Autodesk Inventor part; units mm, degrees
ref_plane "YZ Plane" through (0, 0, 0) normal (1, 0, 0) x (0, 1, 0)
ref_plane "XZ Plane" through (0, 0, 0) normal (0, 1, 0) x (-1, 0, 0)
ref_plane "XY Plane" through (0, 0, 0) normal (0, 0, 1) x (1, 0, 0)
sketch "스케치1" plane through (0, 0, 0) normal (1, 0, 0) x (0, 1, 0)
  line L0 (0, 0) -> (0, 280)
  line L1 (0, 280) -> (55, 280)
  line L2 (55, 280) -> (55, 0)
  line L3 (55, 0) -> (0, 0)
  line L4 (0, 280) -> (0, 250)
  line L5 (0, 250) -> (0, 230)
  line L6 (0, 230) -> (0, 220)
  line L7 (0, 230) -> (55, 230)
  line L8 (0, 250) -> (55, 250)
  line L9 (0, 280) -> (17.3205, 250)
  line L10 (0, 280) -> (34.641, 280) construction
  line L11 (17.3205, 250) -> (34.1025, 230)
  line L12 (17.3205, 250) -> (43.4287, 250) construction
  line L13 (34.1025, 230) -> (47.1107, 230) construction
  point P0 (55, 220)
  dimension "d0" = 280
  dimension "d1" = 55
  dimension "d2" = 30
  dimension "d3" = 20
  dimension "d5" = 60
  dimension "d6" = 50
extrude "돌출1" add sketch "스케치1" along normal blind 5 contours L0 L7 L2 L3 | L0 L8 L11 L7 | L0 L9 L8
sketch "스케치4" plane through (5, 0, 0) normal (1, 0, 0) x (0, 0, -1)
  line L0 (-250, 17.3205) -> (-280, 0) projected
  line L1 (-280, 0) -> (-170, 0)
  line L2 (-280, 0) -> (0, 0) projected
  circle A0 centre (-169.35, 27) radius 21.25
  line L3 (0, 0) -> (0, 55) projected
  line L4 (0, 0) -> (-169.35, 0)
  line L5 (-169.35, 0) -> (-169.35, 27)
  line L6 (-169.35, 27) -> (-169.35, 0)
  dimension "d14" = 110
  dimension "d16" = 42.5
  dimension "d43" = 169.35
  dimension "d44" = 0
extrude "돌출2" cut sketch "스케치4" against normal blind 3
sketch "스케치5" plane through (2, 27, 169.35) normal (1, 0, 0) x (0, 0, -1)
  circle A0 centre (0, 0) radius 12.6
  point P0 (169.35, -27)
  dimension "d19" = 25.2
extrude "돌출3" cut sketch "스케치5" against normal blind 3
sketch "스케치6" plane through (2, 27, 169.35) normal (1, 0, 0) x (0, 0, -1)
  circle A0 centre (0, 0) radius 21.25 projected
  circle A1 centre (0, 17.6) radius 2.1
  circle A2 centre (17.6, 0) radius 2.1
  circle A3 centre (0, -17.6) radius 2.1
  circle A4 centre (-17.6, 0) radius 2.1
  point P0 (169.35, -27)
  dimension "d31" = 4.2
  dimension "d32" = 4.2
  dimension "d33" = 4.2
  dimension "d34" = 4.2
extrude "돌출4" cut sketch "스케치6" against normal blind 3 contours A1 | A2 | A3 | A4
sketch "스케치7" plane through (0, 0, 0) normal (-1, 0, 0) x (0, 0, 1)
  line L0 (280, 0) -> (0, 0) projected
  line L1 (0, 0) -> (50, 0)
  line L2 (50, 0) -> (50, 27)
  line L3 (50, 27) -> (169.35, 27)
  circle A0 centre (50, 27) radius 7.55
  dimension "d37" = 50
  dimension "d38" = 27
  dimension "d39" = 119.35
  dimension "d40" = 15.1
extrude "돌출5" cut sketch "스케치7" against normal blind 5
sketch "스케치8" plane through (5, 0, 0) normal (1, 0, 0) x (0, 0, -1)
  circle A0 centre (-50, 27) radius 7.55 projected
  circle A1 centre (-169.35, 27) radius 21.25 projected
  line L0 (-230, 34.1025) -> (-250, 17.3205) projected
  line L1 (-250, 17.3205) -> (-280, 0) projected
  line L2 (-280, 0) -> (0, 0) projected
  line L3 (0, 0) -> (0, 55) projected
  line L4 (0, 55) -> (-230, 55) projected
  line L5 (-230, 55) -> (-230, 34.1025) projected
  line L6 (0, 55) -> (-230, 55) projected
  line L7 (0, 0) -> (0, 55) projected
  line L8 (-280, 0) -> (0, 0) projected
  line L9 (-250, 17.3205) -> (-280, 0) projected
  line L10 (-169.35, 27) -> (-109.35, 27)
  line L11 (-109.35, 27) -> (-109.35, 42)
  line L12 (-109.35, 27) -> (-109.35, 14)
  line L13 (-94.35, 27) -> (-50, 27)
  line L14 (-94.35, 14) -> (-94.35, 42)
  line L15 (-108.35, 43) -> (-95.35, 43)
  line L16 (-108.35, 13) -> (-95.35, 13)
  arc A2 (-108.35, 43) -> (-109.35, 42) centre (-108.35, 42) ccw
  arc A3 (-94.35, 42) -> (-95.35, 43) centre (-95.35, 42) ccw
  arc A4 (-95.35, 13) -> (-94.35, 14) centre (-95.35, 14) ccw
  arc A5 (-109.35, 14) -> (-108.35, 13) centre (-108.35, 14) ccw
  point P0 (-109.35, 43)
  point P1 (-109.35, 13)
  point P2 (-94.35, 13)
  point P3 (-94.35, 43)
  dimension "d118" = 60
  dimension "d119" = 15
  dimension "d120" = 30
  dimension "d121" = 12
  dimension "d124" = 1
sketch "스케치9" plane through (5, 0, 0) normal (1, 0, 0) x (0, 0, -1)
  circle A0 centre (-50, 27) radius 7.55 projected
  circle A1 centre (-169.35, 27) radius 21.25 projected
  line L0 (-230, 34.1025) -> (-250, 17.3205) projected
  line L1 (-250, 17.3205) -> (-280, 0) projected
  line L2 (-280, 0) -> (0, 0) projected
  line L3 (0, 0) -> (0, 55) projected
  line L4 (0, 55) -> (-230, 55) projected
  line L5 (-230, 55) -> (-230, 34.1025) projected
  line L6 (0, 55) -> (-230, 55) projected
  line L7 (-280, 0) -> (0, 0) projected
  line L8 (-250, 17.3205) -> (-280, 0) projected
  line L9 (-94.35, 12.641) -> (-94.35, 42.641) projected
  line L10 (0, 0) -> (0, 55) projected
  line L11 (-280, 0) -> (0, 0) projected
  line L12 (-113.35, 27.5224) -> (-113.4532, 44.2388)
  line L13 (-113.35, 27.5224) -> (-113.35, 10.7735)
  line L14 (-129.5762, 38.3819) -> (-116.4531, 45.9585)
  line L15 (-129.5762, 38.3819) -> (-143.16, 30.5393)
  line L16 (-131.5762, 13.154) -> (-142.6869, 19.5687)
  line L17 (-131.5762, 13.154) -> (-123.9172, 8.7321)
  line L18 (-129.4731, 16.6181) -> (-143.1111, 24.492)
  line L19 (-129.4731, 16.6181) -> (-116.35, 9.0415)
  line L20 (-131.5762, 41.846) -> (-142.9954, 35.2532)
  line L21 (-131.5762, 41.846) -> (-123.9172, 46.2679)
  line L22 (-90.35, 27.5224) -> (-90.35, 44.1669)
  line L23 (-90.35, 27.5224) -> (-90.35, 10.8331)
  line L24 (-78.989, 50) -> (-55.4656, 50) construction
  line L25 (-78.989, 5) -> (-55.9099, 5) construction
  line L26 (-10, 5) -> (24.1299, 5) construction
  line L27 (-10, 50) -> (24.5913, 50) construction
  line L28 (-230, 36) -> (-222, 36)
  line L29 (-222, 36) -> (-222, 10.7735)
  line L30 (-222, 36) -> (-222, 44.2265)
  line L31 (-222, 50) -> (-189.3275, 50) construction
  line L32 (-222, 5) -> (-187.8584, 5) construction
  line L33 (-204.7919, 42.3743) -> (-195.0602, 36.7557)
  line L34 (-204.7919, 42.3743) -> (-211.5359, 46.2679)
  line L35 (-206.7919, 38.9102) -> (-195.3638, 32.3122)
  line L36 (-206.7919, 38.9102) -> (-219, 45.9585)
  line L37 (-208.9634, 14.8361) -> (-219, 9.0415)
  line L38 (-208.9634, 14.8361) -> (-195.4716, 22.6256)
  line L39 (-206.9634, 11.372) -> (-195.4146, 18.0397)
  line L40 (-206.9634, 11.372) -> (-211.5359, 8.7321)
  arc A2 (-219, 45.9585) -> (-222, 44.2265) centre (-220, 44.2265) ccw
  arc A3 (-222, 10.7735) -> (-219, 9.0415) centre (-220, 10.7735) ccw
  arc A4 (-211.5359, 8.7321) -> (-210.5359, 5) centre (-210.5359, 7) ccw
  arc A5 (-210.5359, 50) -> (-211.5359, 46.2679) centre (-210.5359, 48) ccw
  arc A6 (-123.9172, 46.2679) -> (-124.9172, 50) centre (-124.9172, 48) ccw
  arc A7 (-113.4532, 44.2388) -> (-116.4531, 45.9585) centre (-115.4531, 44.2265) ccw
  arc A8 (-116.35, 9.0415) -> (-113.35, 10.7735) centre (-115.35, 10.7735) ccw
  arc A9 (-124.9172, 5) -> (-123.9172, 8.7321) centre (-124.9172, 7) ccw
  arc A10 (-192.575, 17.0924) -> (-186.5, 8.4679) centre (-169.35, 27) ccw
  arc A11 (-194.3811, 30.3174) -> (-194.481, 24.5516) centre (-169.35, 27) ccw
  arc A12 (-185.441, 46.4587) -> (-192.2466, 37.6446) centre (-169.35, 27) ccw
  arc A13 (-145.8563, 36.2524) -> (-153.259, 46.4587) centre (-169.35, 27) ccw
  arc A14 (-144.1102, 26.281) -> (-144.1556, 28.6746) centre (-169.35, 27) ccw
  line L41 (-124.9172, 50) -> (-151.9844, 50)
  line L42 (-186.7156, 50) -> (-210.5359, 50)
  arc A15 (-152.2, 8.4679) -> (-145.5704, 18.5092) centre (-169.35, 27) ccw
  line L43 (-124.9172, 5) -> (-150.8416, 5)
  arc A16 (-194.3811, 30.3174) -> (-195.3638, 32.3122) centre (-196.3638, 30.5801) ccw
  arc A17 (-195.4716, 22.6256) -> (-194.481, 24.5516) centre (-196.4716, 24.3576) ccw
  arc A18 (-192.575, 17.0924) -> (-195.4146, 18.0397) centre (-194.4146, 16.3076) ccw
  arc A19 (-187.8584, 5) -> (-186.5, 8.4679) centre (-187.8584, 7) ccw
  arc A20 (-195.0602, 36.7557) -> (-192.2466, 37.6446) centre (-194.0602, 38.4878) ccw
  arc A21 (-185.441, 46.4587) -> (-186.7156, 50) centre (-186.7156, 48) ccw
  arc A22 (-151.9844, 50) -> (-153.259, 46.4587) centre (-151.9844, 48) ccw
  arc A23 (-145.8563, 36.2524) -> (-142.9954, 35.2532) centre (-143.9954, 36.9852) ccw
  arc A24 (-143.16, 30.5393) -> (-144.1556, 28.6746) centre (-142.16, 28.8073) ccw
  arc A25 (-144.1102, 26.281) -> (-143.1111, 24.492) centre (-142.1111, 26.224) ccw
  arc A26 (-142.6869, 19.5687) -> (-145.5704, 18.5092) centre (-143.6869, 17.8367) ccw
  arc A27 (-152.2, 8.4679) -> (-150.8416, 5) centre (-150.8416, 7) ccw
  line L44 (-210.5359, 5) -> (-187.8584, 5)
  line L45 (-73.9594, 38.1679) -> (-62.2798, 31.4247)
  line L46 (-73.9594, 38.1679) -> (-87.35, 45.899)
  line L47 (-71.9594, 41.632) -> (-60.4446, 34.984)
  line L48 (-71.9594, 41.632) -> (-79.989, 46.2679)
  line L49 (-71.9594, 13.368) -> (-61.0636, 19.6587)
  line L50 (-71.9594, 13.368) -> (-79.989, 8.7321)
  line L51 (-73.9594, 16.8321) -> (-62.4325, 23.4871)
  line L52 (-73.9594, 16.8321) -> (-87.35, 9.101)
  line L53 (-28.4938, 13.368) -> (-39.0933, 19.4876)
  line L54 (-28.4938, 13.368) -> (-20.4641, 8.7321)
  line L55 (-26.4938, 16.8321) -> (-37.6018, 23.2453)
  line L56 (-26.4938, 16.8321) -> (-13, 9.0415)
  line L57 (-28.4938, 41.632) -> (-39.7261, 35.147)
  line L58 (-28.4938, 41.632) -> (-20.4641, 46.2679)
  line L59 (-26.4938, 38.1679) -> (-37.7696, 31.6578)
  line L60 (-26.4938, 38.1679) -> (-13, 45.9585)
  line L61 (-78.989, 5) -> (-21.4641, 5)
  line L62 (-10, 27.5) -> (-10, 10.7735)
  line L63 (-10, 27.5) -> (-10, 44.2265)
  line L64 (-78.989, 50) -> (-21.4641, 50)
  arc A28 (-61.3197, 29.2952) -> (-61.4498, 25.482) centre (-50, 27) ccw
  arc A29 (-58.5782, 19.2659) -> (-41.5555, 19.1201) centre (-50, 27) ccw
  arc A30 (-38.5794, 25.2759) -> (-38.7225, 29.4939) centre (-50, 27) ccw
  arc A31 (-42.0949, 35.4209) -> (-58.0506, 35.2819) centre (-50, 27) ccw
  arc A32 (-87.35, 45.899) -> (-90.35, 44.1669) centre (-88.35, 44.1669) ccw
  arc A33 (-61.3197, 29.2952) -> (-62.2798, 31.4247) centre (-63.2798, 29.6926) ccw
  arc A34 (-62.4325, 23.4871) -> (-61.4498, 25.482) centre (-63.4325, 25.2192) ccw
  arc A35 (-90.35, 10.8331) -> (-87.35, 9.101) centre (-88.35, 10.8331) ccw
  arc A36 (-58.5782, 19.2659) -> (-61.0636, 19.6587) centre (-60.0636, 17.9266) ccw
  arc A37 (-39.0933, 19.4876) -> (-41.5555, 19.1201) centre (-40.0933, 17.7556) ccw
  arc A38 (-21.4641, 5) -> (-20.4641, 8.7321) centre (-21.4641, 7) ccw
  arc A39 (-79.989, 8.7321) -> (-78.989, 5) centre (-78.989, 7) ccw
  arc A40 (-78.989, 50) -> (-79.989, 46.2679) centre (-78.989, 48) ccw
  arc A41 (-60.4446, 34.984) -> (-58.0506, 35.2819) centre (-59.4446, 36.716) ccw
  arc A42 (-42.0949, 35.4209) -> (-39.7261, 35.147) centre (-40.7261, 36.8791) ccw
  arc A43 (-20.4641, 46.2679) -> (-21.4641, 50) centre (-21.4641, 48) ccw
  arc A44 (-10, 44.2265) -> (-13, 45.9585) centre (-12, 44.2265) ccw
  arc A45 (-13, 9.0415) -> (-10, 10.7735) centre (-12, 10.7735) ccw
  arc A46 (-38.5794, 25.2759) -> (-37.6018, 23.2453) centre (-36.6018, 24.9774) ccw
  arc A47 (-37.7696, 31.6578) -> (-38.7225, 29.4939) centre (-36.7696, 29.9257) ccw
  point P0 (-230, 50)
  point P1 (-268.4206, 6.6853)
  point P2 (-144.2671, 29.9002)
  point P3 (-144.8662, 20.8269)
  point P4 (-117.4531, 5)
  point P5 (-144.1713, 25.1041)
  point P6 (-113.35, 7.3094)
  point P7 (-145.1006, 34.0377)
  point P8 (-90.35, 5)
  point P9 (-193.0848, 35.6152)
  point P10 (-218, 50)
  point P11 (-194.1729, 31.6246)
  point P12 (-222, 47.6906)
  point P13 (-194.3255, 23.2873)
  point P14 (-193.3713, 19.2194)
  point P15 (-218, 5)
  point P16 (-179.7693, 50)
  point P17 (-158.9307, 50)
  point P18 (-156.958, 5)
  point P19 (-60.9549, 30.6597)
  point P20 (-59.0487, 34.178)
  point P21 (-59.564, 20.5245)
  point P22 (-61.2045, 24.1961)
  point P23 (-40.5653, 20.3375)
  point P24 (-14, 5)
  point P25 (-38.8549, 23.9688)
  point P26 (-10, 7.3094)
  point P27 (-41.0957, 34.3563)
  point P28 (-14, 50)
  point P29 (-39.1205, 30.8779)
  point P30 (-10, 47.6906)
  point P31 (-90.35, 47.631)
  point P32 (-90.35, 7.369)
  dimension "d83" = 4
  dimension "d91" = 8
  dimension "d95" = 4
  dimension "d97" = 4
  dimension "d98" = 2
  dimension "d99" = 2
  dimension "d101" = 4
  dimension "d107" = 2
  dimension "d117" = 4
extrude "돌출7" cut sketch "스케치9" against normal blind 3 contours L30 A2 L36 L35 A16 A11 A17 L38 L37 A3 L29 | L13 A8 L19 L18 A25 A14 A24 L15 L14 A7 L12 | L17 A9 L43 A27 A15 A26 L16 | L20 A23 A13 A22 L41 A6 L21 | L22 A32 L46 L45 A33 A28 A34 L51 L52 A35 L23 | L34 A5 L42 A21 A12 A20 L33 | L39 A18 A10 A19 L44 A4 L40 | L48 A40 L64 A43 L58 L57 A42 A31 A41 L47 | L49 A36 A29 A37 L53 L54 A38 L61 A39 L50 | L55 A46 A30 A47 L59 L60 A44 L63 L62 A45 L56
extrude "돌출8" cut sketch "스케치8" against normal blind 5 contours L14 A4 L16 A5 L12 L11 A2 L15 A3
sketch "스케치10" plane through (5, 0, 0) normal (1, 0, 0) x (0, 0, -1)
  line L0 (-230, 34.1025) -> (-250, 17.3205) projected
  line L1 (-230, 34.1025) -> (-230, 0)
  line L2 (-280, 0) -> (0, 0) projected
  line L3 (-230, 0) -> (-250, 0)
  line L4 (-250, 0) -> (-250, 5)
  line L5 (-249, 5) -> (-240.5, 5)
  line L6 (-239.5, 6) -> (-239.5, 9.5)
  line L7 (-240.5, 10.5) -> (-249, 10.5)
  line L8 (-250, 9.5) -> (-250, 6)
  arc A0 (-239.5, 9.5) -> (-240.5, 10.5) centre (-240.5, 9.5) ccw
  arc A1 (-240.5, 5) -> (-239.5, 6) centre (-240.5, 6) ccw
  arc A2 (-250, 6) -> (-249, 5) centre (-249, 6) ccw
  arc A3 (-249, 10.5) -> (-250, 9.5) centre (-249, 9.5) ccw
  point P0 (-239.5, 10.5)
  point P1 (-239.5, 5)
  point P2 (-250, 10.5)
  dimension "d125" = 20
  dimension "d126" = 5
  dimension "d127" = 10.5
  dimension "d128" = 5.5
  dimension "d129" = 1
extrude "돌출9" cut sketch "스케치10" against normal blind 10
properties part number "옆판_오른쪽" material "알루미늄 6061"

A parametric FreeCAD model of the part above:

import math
import FreeCAD as App
import Part
import Sketcher

V = App.Vector
Q = App.Units.Quantity


def add_polygon(sketch, points):
    """Adds a closed chain of lines whose ends are joined by coincident constraints."""
    first, n = sketch.GeometryCount, len(points)
    for a, b in zip(points, points[1:] + points[:1]):
        sketch.addGeometry(Part.LineSegment(App.Vector(*a, 0), App.Vector(*b, 0)), False)
    for i in range(n):
        sketch.addConstraint(Sketcher.Constraint("Coincident", first + i, 2, first + (i + 1) % n, 1))

doc = App.newDocument("Part")
body = doc.addObject("PartDesign::Body", "Body")

sketch1 = body.newObject("Sketcher::SketchObject", "Sketch")
sketch1.AttachmentSupport = (doc.getObject("YZ_Plane"), [""])
sketch1.MapMode = "FlatFace"
add_polygon(sketch1, [(0, 0), (55, 0), (55, 230), (34, 230), (17, 250), (0, 280)])
sketch1.addConstraint(Sketcher.Constraint("Horizontal", 0))
sketch1.addConstraint(Sketcher.Constraint("Vertical", 1))
sketch1.addConstraint(Sketcher.Constraint("Horizontal", 2))
sketch1.addConstraint(Sketcher.Constraint("Vertical", 5))
sketch1.addConstraint(Sketcher.Constraint("Coincident", 5, 2, -1, 1))
sketch1.addConstraint(Sketcher.Constraint("DistanceX", 0, 1, 0, 2, 55.0))
sketch1.addConstraint(Sketcher.Constraint("DistanceY", 5, 2, 5, 1, 280.0))
sketch1.addConstraint(Sketcher.Constraint("DistanceY", 2, 2, 3, 2, 20.0))
sketch1.addConstraint(Sketcher.Constraint("DistanceY", 3, 2, 4, 2, 30.0))
sketch1.addConstraint(Sketcher.Constraint("Angle", 3, Q("130 deg")))
sketch1.addConstraint(Sketcher.Constraint("Angle", 4, Q("120 deg")))
pad1 = body.newObject("PartDesign::Pad", "Pad")
pad1.Profile = sketch1
pad1.Length = 5

sketch2 = body.newObject("Sketcher::SketchObject", "Sketch001")
sketch2.AttachmentSupport = (doc.getObject("YZ_Plane"), [""])
sketch2.MapMode = "FlatFace"
sketch2.AttachmentOffset = App.Placement(V(0, 0, 5), App.Rotation())
sketch2.addGeometry(Part.Circle(V(27, 169, 0), V(0, 0, 1), 21), False)
sketch2.addConstraint(Sketcher.Constraint("Diameter", 0, 42.5))
sketch2.addConstraint(Sketcher.Constraint("DistanceY", -1, 1, 0, 3, 169.35))
sketch2.addConstraint(Sketcher.Constraint("DistanceX", -1, 1, 0, 3, 27.0))
pocket1 = body.newObject("PartDesign::Pocket", "Pocket")
pocket1.Profile = sketch2
pocket1.Length = 3

sketch3 = body.newObject("Sketcher::SketchObject", "Sketch002")
sketch3.AttachmentSupport = (doc.getObject("YZ_Plane"), [""])
sketch3.MapMode = "FlatFace"
sketch3.AttachmentOffset = App.Placement(V(0, 0, 2), App.Rotation())
sketch3.addGeometry(Part.Circle(V(27, 169, 0), V(0, 0, 1), 13), False)
sketch3.addConstraint(Sketcher.Constraint("Diameter", 0, 25.2))
sketch3.addConstraint(Sketcher.Constraint("DistanceX", -1, 1, 0, 3, 27.0))
sketch3.addConstraint(Sketcher.Constraint("DistanceY", -1, 1, 0, 3, 169.35))
pocket2 = body.newObject("PartDesign::Pocket", "Pocket001")
pocket2.Profile = sketch3
pocket2.Length = 3

sketch4 = body.newObject("Sketcher::SketchObject", "Sketch003")
sketch4.AttachmentSupport = (doc.getObject("YZ_Plane"), [""])
sketch4.MapMode = "FlatFace"
sketch4.AttachmentOffset = App.Placement(V(0, 0, 2), App.Rotation())
sketch4.addGeometry(Part.Circle(V(44.6, 169.3, 0), V(0, 0, 1), 2.1), False)
sketch4.addGeometry(Part.Circle(V(27, 151.8, 0), V(0, 0, 1), 2.1), False)
sketch4.addGeometry(Part.Circle(V(9.4, 169.3, 0), V(0, 0, 1), 2.1), False)
sketch4.addGeometry(Part.Circle(V(27, 186.9, 0), V(0, 0, 1), 2.1), False)
sketch4.addConstraint(Sketcher.Constraint("Equal", 0, 1))
sketch4.addConstraint(Sketcher.Constraint("Equal", 1, 2))
sketch4.addConstraint(Sketcher.Constraint("Equal", 2, 3))
sketch4.addConstraint(Sketcher.Constraint("Horizontal", 0, 3, 2, 3))
sketch4.addConstraint(Sketcher.Constraint("Vertical", 1, 3, 3, 3))
sketch4.addConstraint(Sketcher.Constraint("Diameter", 0, 4.2))
sketch4.addConstraint(Sketcher.Constraint("DistanceX", -1, 1, 1, 3, 27.0))
sketch4.addConstraint(Sketcher.Constraint("DistanceX", -1, 1, 0, 3, 44.6))
sketch4.addConstraint(Sketcher.Constraint("DistanceX", -1, 1, 2, 3, 9.4))
sketch4.addConstraint(Sketcher.Constraint("DistanceY", 1, 3, 0, 3, 17.6))
sketch4.addConstraint(Sketcher.Constraint("DistanceY", 0, 3, 3, 3, 17.6))
sketch4.addConstraint(Sketcher.Constraint("DistanceY", -1, 1, 0, 3, 169.35))
pocket3 = body.newObject("PartDesign::Pocket", "Pocket002")
pocket3.Profile = sketch4
pocket3.Length = 3

sketch5 = body.newObject("Sketcher::SketchObject", "Sketch004")
sketch5.AttachmentSupport = (doc.getObject("YZ_Plane"), [""])
sketch5.MapMode = "FlatFace"
sketch5.addGeometry(Part.Circle(V(27, 50, 0), V(0, 0, 1), 8), False)
sketch5.addConstraint(Sketcher.Constraint("Diameter", 0, 15.1))
sketch5.addConstraint(Sketcher.Constraint("DistanceX", -1, 1, 0, 3, 27.0))
sketch5.addConstraint(Sketcher.Constraint("DistanceY", -1, 1, 0, 3, 50.0))
pocket4 = body.newObject("PartDesign::Pocket", "Pocket003")
pocket4.Profile = sketch5
pocket4.Length = 5
pocket4.Reversed = True

sketch6 = body.newObject("Sketcher::SketchObject", "Sketch005")
sketch6.AttachmentSupport = (doc.getObject("YZ_Plane"), [""])
sketch6.MapMode = "FlatFace"
sketch6.AttachmentOffset = App.Placement(V(0, 0, 5), App.Rotation())
sketch6.addGeometry(Part.LineSegment(V(44.2, 222, 0), V(10.8, 222, 0)), False)
sketch6.addGeometry(Part.ArcOfCircle(Part.Circle(V(10.8, 220, 0), V(0, 0, 1), 2), math.radians(90), math.radians(210)), False)
sketch6.addGeometry(Part.LineSegment(V(9, 219, 0), V(14.8, 209, 0)), False)
sketch6.addGeometry(Part.LineSegment(V(14.8, 209, 0), V(22.6, 195.5, 0)), False)
sketch6.addGeometry(Part.ArcOfCircle(Part.Circle(V(24.4, 196.5, 0), V(0, 0, 1), 2), math.radians(-150), math.radians(-84)), False)
sketch6.addGeometry(Part.ArcOfCircle(Part.Circle(V(27, 169.3, 0), V(0, 0, 1), 25.3), math.radians(82.45), math.radians(95.56)), False)
sketch6.addGeometry(Part.ArcOfCircle(Part.Circle(V(30.6, 196.4, 0), V(0, 0, 1), 2), math.radians(-98), math.radians(-30)), False)
sketch6.addGeometry(Part.LineSegment(V(32.3, 195.4, 0), V(38.9, 206.8, 0)), False)
sketch6.addGeometry(Part.LineSegment(V(38.9, 206.8, 0), V(46, 219, 0)), False)
sketch6.addGeometry(Part.ArcOfCircle(Part.Circle(V(44.2, 220, 0), V(0, 0, 1), 2), math.radians(-30), math.radians(90)), False)
sketch6.addGeometry(Part.LineSegment(V(10.8, 113.3, 0), V(27.5, 113.3, 0)), False)
sketch6.addGeometry(Part.LineSegment(V(27.5, 113.3, 0), V(44.2, 113.5, 0)), False)
sketch6.addGeometry(Part.ArcOfCircle(Part.Circle(V(44.2, 115.5, 0), V(0, 0, 1), 2), math.radians(-90), math.radians(30)), False)
sketch6.addGeometry(Part.LineSegment(V(46, 116.5, 0), V(38.4, 129.6, 0)), False)
sketch6.addGeometry(Part.LineSegment(V(38.4, 129.6, 0), V(30.5, 143.2, 0)), False)
sketch6.addGeometry(Part.ArcOfCircle(Part.Circle(V(28.8, 142.2, 0), V(0, 0, 1), 2), math.radians(30), math.radians(94)), False)
sketch6.addGeometry(Part.ArcOfCircle(Part.Circle(V(27, 169.3, 0), V(0, 0, 1), 25.2), math.radians(-91.63), math.radians(-86.19)), False)
sketch6.addGeometry(Part.ArcOfCircle(Part.Circle(V(26.2, 142.1, 0), V(0, 0, 1), 2), math.radians(88), math.radians(150)), False)
sketch6.addGeometry(Part.LineSegment(V(24.5, 143.1, 0), V(16.6, 129.5, 0)), False)
sketch6.addGeometry(Part.LineSegment(V(16.6, 129.5, 0), V(9, 116.3, 0)), False)
sketch6.addGeometry(Part.ArcOfCircle(Part.Circle(V(10.8, 115.3, 0), V(0, 0, 1), 2), math.radians(150), math.radians(270)), False)
sketch6.addGeometry(Part.LineSegment(V(8.7, 123.9, 0), V(13.2, 131.6, 0)), False)
sketch6.addGeometry(Part.LineSegment(V(13.2, 131.6, 0), V(19.6, 142.7, 0)), False)
sketch6.addGeometry(Part.ArcOfCircle(Part.Circle(V(17.8, 143.7, 0), V(0, 0, 1), 2), math.radians(-30), math.radians(70)), False)
sketch6.addGeometry(Part.ArcOfCircle(Part.Circle(V(27, 169.3, 0), V(0, 0, 1), 25.3), math.radians(-137), math.radians(-110)), False)
sketch6.addGeometry(Part.ArcOfCircle(Part.Circle(V(7, 150.8, 0), V(0, 0, 1), 2), math.radians(43), math.radians(180)), False)
sketch6.addGeometry(Part.LineSegment(V(5, 150.8, 0), V(5, 124.9, 0)), False)
sketch6.addGeometry(Part.ArcOfCircle(Part.Circle(V(7, 124.9, 0), V(0, 0, 1), 2), math.radians(180), math.radians(330)), False)
sketch6.addGeometry(Part.LineSegment(V(35.3, 143, 0), V(41.8, 131.6, 0)), False)
sketch6.addGeometry(Part.LineSegment(V(41.8, 131.6, 0), V(46.3, 123.9, 0)), False)
sketch6.addGeometry(Part.ArcOfCircle(Part.Circle(V(48, 124.9, 0), V(0, 0, 1), 2), math.radians(-150), math.radians(0)), False)
sketch6.addGeometry(Part.LineSegment(V(50, 124.9, 0), V(50, 152, 0)), False)
sketch6.addGeometry(Part.ArcOfCircle(Part.Circle(V(48, 152, 0), V(0, 0, 1), 2), math.radians(0), math.radians(140)), False)
sketch6.addGeometry(Part.ArcOfCircle(Part.Circle(V(27, 169.3, 0), V(0, 0, 1), 25.3), math.radians(-69), math.radians(-40)), False)
sketch6.addGeometry(Part.ArcOfCircle(Part.Circle(V(37, 144, 0), V(0, 0, 1), 2), math.radians(111), math.radians(210)), False)
sketch6.addGeometry(Part.LineSegment(V(44.2, 90.3, 0), V(10.8, 90.3, 0)), False)
sketch6.addGeometry(Part.ArcOfCircle(Part.Circle(V(10.8, 88.3, 0), V(0, 0, 1), 2), math.radians(90), math.radians(210)), False)
sketch6.addGeometry(Part.LineSegment(V(9.1, 87.3, 0), V(16.8, 74, 0)), False)
sketch6.addGeometry(Part.LineSegment(V(16.8, 74, 0), V(23.5, 62.4, 0)), False)
sketch6.addGeometry(Part.ArcOfCircle(Part.Circle(V(25.2, 63.4, 0), V(0, 0, 1), 2), math.radians(-150), math.radians(-82)), False)
sketch6.addGeometry(Part.ArcOfCircle(Part.Circle(V(27, 50, 0), V(0, 0, 1), 11.5), math.radians(78.54), math.radians(97.55)), False)
sketch6.addGeometry(Part.ArcOfCircle(Part.Circle(V(29.7, 63.3, 0), V(0, 0, 1), 2), math.radians(-101), math.radians(-30)), False)
sketch6.addGeometry(Part.LineSegment(V(31.4, 62.3, 0), V(38.2, 74, 0)), False)
sketch6.addGeometry(Part.LineSegment(V(38.2, 74, 0), V(45.9, 87.3, 0)), False)
sketch6.addGeometry(Part.ArcOfCircle(Part.Circle(V(44.2, 88.3, 0), V(0, 0, 1), 2), math.radians(-30), math.radians(90)), False)
sketch6.addGeometry(Part.LineSegment(V(46.3, 211.5, 0), V(42.4, 204.8, 0)), False)
sketch6.addGeometry(Part.LineSegment(V(42.4, 204.8, 0), V(36.8, 195.1, 0)), False)
sketch6.addGeometry(Part.ArcOfCircle(Part.Circle(V(38.5, 194.1, 0), V(0, 0, 1), 2), math.radians(150), math.radians(245)), False)
sketch6.addGeometry(Part.ArcOfCircle(Part.Circle(V(27, 169.3, 0), V(0, 0, 1), 25.3), math.radians(40), math.radians(65)), False)
sketch6.addGeometry(Part.ArcOfCircle(Part.Circle(V(48, 186.7, 0), V(0, 0, 1), 2), math.radians(-140), math.radians(0)), False)
sketch6.addGeometry(Part.LineSegment(V(50, 186.7, 0), V(50, 210.5, 0)), False)
sketch6.addGeometry(Part.ArcOfCircle(Part.Circle(V(48, 210.5, 0), V(0, 0, 1), 2), math.radians(0), math.radians(150)), False)
sketch6.addGeometry(Part.LineSegment(V(18, 195.4, 0), V(11.4, 207, 0)), False)
sketch6.addGeometry(Part.LineSegment(V(11.4, 207, 0), V(8.7, 211.5, 0)), False)
sketch6.addGeometry(Part.ArcOfCircle(Part.Circle(V(7, 210.5, 0), V(0, 0, 1), 2), math.radians(30), math.radians(180)), False)
sketch6.addGeometry(Part.LineSegment(V(5, 210.5, 0), V(5, 187.9, 0)), False)
sketch6.addGeometry(Part.ArcOfCircle(Part.Circle(V(7, 187.9, 0), V(0, 0, 1), 2), math.radians(180), math.radians(317)), False)
sketch6.addGeometry(Part.ArcOfCircle(Part.Circle(V(27, 169.3, 0), V(0, 0, 1), 25.2), math.radians(113), math.radians(137)), False)
sketch6.addGeometry(Part.ArcOfCircle(Part.Circle(V(16.3, 194.4, 0), V(0, 0, 1), 2), math.radians(-67), math.radians(30)), False)
sketch6.addGeometry(Part.LineSegment(V(46.3, 80, 0), V(41.6, 72, 0)), False)
sketch6.addGeometry(Part.LineSegment(V(41.6, 72, 0), V(35, 60.4, 0)), False)
sketch6.addGeometry(Part.ArcOfCircle(Part.Circle(V(36.7, 59.4, 0), V(0, 0, 1), 2), math.radians(150), math.radians(224)), False)
sketch6.addGeometry(Part.ArcOfCircle(Part.Circle(V(27, 50, 0), V(0, 0, 1), 11.5), math.radians(-43), math.radians(44)), False)
sketch6.addGeometry(Part.ArcOfCircle(Part.Circle(V(36.9, 40.7, 0), V(0, 0, 1), 2), math.radians(137), math.radians(210)), False)
sketch6.addGeometry(Part.LineSegment(V(35.1, 39.7, 0), V(41.6, 28.5, 0)), False)
sketch6.addGeometry(Part.LineSegment(V(41.6, 28.5, 0), V(46.3, 20.5, 0)), False)
sketch6.addGeometry(Part.ArcOfCircle(Part.Circle(V(48, 21.5, 0), V(0, 0, 1), 2), math.radians(-150), math.radians(0)), False)
sketch6.addGeometry(Part.LineSegment(V(50, 21.5, 0), V(50, 79, 0)), False)
sketch6.addGeometry(Part.ArcOfCircle(Part.Circle(V(48, 79, 0), V(0, 0, 1), 2), math.radians(0), math.radians(150)), False)
sketch6.addGeometry(Part.LineSegment(V(19.7, 61.1, 0), V(13.4, 72, 0)), False)
sketch6.addGeometry(Part.LineSegment(V(13.4, 72, 0), V(8.7, 80, 0)), False)
sketch6.addGeometry(Part.ArcOfCircle(Part.Circle(V(7, 79, 0), V(0, 0, 1), 2), math.radians(30), math.radians(180)), False)
sketch6.addGeometry(Part.LineSegment(V(5, 79, 0), V(5, 21.5, 0)), False)
sketch6.addGeometry(Part.ArcOfCircle(Part.Circle(V(7, 21.5, 0), V(0, 0, 1), 2), math.radians(180), math.radians(330)), False)
sketch6.addGeometry(Part.LineSegment(V(8.7, 20.5, 0), V(13.4, 28.5, 0)), False)
sketch6.addGeometry(Part.LineSegment(V(13.4, 28.5, 0), V(19.5, 39.1, 0)), False)
sketch6.addGeometry(Part.ArcOfCircle(Part.Circle(V(17.8, 40.1, 0), V(0, 0, 1), 2), math.radians(-30), math.radians(47)), False)
sketch6.addGeometry(Part.ArcOfCircle(Part.Circle(V(27, 50, 0), V(0, 0, 1), 11.6), math.radians(132), math.radians(227)), False)
sketch6.addGeometry(Part.ArcOfCircle(Part.Circle(V(17.9, 60.1, 0), V(0, 0, 1), 2), math.radians(-48), math.radians(30)), False)
sketch6.addGeometry(Part.LineSegment(V(23.2, 37.6, 0), V(16.8, 26.5, 0)), False)
sketch6.addGeometry(Part.LineSegment(V(16.8, 26.5, 0), V(9, 13, 0)), False)
sketch6.addGeometry(Part.ArcOfCircle(Part.Circle(V(10.8, 12, 0), V(0, 0, 1), 2), math.radians(150), math.radians(270)), False)
sketch6.addGeometry(Part.LineSegment(V(10.8, 10, 0), V(44.2, 10, 0)), False)
sketch6.addGeometry(Part.ArcOfCircle(Part.Circle(V(44.2, 12, 0), V(0, 0, 1), 2), math.radians(-90), math.radians(30)), False)
sketch6.addGeometry(Part.LineSegment(V(46, 13, 0), V(38.2, 26.5, 0)), False)
sketch6.addGeometry(Part.LineSegment(V(38.2, 26.5, 0), V(31.7, 37.8, 0)), False)
sketch6.addGeometry(Part.ArcOfCircle(Part.Circle(V(29.9, 36.8, 0), V(0, 0, 1), 2), math.radians(30), math.radians(102)), False)
sketch6.addGeometry(Part.ArcOfCircle(Part.Circle(V(27, 50, 0), V(0, 0, 1), 11.5), math.radians(-99), math.radians(-78)), False)
sketch6.addGeometry(Part.ArcOfCircle(Part.Circle(V(25, 36.6, 0), V(0, 0, 1), 2), math.radians(81), math.radians(150)), False)
sketch6.addConstraint(Sketcher.Constraint("Tangent", 0, 2, 1, 1))
sketch6.addConstraint(Sketcher.Constraint("Tangent", 1, 2, 2, 1))
sketch6.addConstraint(Sketcher.Constraint("Coincident", 2, 2, 3, 1))
sketch6.addConstraint(Sketcher.Constraint("Tangent", 3, 2, 4, 1))
sketch6.addConstraint(Sketcher.Constraint("Tangent", 4, 2, 5, 2))
sketch6.addConstraint(Sketcher.Constraint("Tangent", 5, 1, 6, 1))
sketch6.addConstraint(Sketcher.Constraint("Tangent", 6, 2, 7, 1))
sketch6.addConstraint(Sketcher.Constraint("Coincident", 7, 2, 8, 1))
sketch6.addConstraint(Sketcher.Constraint("Tangent", 8, 2, 9, 1))
sketch6.addConstraint(Sketcher.Constraint("Tangent", 9, 2, 0, 1))
sketch6.addConstraint(Sketcher.Constraint("Coincident", 10, 2, 11, 1))
sketch6.addConstraint(Sketcher.Constraint("Tangent", 11, 2, 12, 1))
sketch6.addConstraint(Sketcher.Constraint("Tangent", 12, 2, 13, 1))
sketch6.addConstraint(Sketcher.Constraint("Coincident", 13, 2, 14, 1))
sketch6.addConstraint(Sketcher.Constraint("Tangent", 14, 2, 15, 1))
sketch6.addConstraint(Sketcher.Constraint("Tangent", 15, 2, 16, 2))
sketch6.addConstraint(Sketcher.Constraint("Tangent", 16, 1, 17, 1))
sketch6.addConstraint(Sketcher.Constraint("Tangent", 17, 2, 18, 1))
sketch6.addConstraint(Sketcher.Constraint("Coincident", 18, 2, 19, 1))
sketch6.addConstraint(Sketcher.Constraint("Tangent", 19, 2, 20, 1))
sketch6.addConstraint(Sketcher.Constraint("Tangent", 20, 2, 10, 1))
sketch6.addConstraint(Sketcher.Constraint("Coincident", 21, 2, 22, 1))
sketch6.addConstraint(Sketcher.Constraint("Tangent", 22, 2, 23, 1))
sketch6.addConstraint(Sketcher.Constraint("Tangent", 23, 2, 24, 2))
sketch6.addConstraint(Sketcher.Constraint("Tangent", 24, 1, 25, 1))
sketch6.addConstraint(Sketcher.Constraint("Tangent", 25, 2, 26, 1))
sketch6.addConstraint(Sketcher.Constraint("Tangent", 26, 2, 27, 1))
sketch6.addConstraint(Sketcher.Constraint("Tangent", 27, 2, 21, 1))
sketch6.addConstraint(Sketcher.Constraint("Coincident", 28, 2, 29, 1))
sketch6.addConstraint(Sketcher.Constraint("Tangent", 29, 2, 30, 1))
sketch6.addConstraint(Sketcher.Constraint("Tangent", 30, 2, 31, 1))
sketch6.addConstraint(Sketcher.Constraint("Tangent", 31, 2, 32, 1))
sketch6.addConstraint(Sketcher.Constraint("Tangent", 32, 2, 33, 2))
sketch6.addConstraint(Sketcher.Constraint("Tangent", 33, 1, 34, 1))
sketch6.addConstraint(Sketcher.Constraint("Tangent", 34, 2, 28, 1))
sketch6.addConstraint(Sketcher.Constraint("Tangent", 35, 2, 36, 1))
sketch6.addConstraint(Sketcher.Constraint("Tangent", 36, 2, 37, 1))
sketch6.addConstraint(Sketcher.Constraint("Coincident", 37, 2, 38, 1))
sketch6.addConstraint(Sketcher.Constraint("Tangent", 38, 2, 39, 1))
sketch6.addConstraint(Sketcher.Constraint("Tangent", 39, 2, 40, 2))
sketch6.addConstraint(Sketcher.Constraint("Tangent", 40, 1, 41, 1))
sketch6.addConstraint(Sketcher.Constraint("Tangent", 41, 2, 42, 1))
sketch6.addConstraint(Sketcher.Constraint("Coincident", 42, 2, 43, 1))
sketch6.addConstraint(Sketcher.Constraint("Tangent", 43, 2, 44, 1))
sketch6.addConstraint(Sketcher.Constraint("Tangent", 44, 2, 35, 1))
sketch6.addConstraint(Sketcher.Constraint("Coincident", 45, 2, 46, 1))
sketch6.addConstraint(Sketcher.Constraint("Tangent", 46, 2, 47, 1))
sketch6.addConstraint(Sketcher.Constraint("Tangent", 47, 2, 48, 2))
sketch6.addConstraint(Sketcher.Constraint("Tangent", 48, 1, 49, 1))
sketch6.addConstraint(Sketcher.Constraint("Tangent", 49, 2, 50, 1))
sketch6.addConstraint(Sketcher.Constraint("Tangent", 50, 2, 51, 1))
sketch6.addConstraint(Sketcher.Constraint("Tangent", 51, 2, 45, 1))
sketch6.addConstraint(Sketcher.Constraint("Coincident", 52, 2, 53, 1))
sketch6.addConstraint(Sketcher.Constraint("Tangent", 53, 2, 54, 1))
sketch6.addConstraint(Sketcher.Constraint("Tangent", 54, 2, 55, 1))
sketch6.addConstraint(Sketcher.Constraint("Tangent", 55, 2, 56, 1))
sketch6.addConstraint(Sketcher.Constraint("Tangent", 56, 2, 57, 2))
sketch6.addConstraint(Sketcher.Constraint("Tangent", 57, 1, 58, 1))
sketch6.addConstraint(Sketcher.Constraint("Tangent", 58, 2, 52, 1))
sketch6.addConstraint(Sketcher.Constraint("Coincident", 59, 2, 60, 1))
sketch6.addConstraint(Sketcher.Constraint("Tangent", 60, 2, 61, 1))
sketch6.addConstraint(Sketcher.Constraint("Tangent", 61, 2, 62, 2))
sketch6.addConstraint(Sketcher.Constraint("Tangent", 62, 1, 63, 1))
sketch6.addConstraint(Sketcher.Constraint("Tangent", 63, 2, 64, 1))
sketch6.addConstraint(Sketcher.Constraint("Coincident", 64, 2, 65, 1))
sketch6.addConstraint(Sketcher.Constraint("Tangent", 65, 2, 66, 1))
sketch6.addConstraint(Sketcher.Constraint("Tangent", 66, 2, 67, 1))
sketch6.addConstraint(Sketcher.Constraint("Tangent", 67, 2, 68, 1))
sketch6.addConstraint(Sketcher.Constraint("Tangent", 68, 2, 59, 1))
sketch6.addConstraint(Sketcher.Constraint("Coincident", 69, 2, 70, 1))
sketch6.addConstraint(Sketcher.Constraint("Tangent", 70, 2, 71, 1))
sketch6.addConstraint(Sketcher.Constraint("Tangent", 71, 2, 72, 1))
sketch6.addConstraint(Sketcher.Constraint("Tangent", 72, 2, 73, 1))
sketch6.addConstraint(Sketcher.Constraint("Tangent", 73, 2, 74, 1))
sketch6.addConstraint(Sketcher.Constraint("Coincident", 74, 2, 75, 1))
sketch6.addConstraint(Sketcher.Constraint("Tangent", 75, 2, 76, 1))
sketch6.addConstraint(Sketcher.Constraint("Tangent", 76, 2, 77, 2))
sketch6.addConstraint(Sketcher.Constraint("Tangent", 77, 1, 78, 1))
sketch6.addConstraint(Sketcher.Constraint("Tangent", 78, 2, 69, 1))
sketch6.addConstraint(Sketcher.Constraint("Coincident", 79, 2, 80, 1))
sketch6.addConstraint(Sketcher.Constraint("Tangent", 80, 2, 81, 1))
sketch6.addConstraint(Sketcher.Constraint("Tangent", 81, 2, 82, 1))
sketch6.addConstraint(Sketcher.Constraint("Tangent", 82, 2, 83, 1))
sketch6.addConstraint(Sketcher.Constraint("Tangent", 83, 2, 84, 1))
sketch6.addConstraint(Sketcher.Constraint("Coincident", 84, 2, 85, 1))
sketch6.addConstraint(Sketcher.Constraint("Tangent", 85, 2, 86, 1))
sketch6.addConstraint(Sketcher.Constraint("Tangent", 86, 2, 87, 2))
sketch6.addConstraint(Sketcher.Constraint("Tangent", 87, 1, 88, 1))
sketch6.addConstraint(Sketcher.Constraint("Tangent", 88, 2, 79, 1))
sketch6.addConstraint(Sketcher.Constraint("Horizontal", 0))
sketch6.addConstraint(Sketcher.Constraint("Horizontal", 10))
sketch6.addConstraint(Sketcher.Constraint("Vertical", 26))
sketch6.addConstraint(Sketcher.Constraint("Vertical", 31))
sketch6.addConstraint(Sketcher.Constraint("Horizontal", 35))
sketch6.addConstraint(Sketcher.Constraint("Vertical", 50))
sketch6.addConstraint(Sketcher.Constraint("Vertical", 55))
sketch6.addConstraint(Sketcher.Constraint("Vertical", 67))
sketch6.addConstraint(Sketcher.Constraint("Vertical", 72))
sketch6.addConstraint(Sketcher.Constraint("Horizontal", 82))
sketch6.addConstraint(Sketcher.Constraint("Coincident", 33, 3, 24, 3))
sketch6.addConstraint(Sketcher.Constraint("Coincident", 48, 3, 24, 3))
sketch6.addConstraint(Sketcher.Constraint("Coincident", 57, 3, 24, 3))
sketch6.addConstraint(Sketcher.Constraint("Coincident", 77, 3, 62, 3))
sketch6.addConstraint(Sketcher.Constraint("Equal", 1, 4))
sketch6.addConstraint(Sketcher.Constraint("Equal", 4, 6))
sketch6.addConstraint(Sketcher.Constraint("Equal", 6, 9))
sketch6.addConstraint(Sketcher.Constraint("Equal", 9, 12))
sketch6.addConstraint(Sketcher.Constraint("Equal", 12, 15))
sketch6.addConstraint(Sketcher.Constraint("Equal", 15, 17))
sketch6.addConstraint(Sketcher.Constraint("Equal", 17, 20))
sketch6.addConstraint(Sketcher.Constraint("Equal", 20, 23))
sketch6.addConstraint(Sketcher.Constraint("Equal", 23, 25))
sketch6.addConstraint(Sketcher.Constraint("Equal", 25, 27))
sketch6.addConstraint(Sketcher.Constraint("Equal", 27, 30))
sketch6.addConstraint(Sketcher.Constraint("Equal", 30, 32))
sketch6.addConstraint(Sketcher.Constraint("Equal", 24, 33))
sketch6.addConstraint(Sketcher.Constraint("Equal", 32, 34))
sketch6.addConstraint(Sketcher.Constraint("Equal", 34, 36))
sketch6.addConstraint(Sketcher.Constraint("Equal", 36, 39))
sketch6.addConstraint(Sketcher.Constraint("Equal", 39, 41))
sketch6.addConstraint(Sketcher.Constraint("Equal", 41, 44))
sketch6.addConstraint(Sketcher.Constraint("Equal", 44, 47))
sketch6.addConstraint(Sketcher.Constraint("Equal", 33, 48))
sketch6.addConstraint(Sketcher.Constraint("Equal", 47, 49))
sketch6.addConstraint(Sketcher.Constraint("Equal", 49, 51))
sketch6.addConstraint(Sketcher.Constraint("Equal", 51, 54))
sketch6.addConstraint(Sketcher.Constraint("Equal", 54, 56))
sketch6.addConstraint(Sketcher.Constraint("Equal", 48, 57))
sketch6.addConstraint(Sketcher.Constraint("Equal", 56, 58))
sketch6.addConstraint(Sketcher.Constraint("Equal", 58, 61))
sketch6.addConstraint(Sketcher.Constraint("Equal", 61, 63))
sketch6.addConstraint(Sketcher.Constraint("Equal", 63, 66))
sketch6.addConstraint(Sketcher.Constraint("Equal", 66, 68))
sketch6.addConstraint(Sketcher.Constraint("Equal", 68, 71))
sketch6.addConstraint(Sketcher.Constraint("Equal", 71, 73))
sketch6.addConstraint(Sketcher.Constraint("Equal", 73, 76))
sketch6.addConstraint(Sketcher.Constraint("Equal", 62, 77))
sketch6.addConstraint(Sketcher.Constraint("Equal", 76, 78))
sketch6.addConstraint(Sketcher.Constraint("Equal", 78, 81))
sketch6.addConstraint(Sketcher.Constraint("Equal", 81, 83))
sketch6.addConstraint(Sketcher.Constraint("Equal", 83, 86))
sketch6.addConstraint(Sketcher.Constraint("Equal", 86, 88))
sketch6.addConstraint(Sketcher.Constraint("Parallel", 2, 3))
sketch6.addConstraint(Sketcher.Constraint("Parallel", 7, 8))
sketch6.addConstraint(Sketcher.Constraint("Parallel", 3, 13))
sketch6.addConstraint(Sketcher.Constraint("Parallel", 13, 14))
sketch6.addConstraint(Sketcher.Constraint("Parallel", 8, 18))
sketch6.addConstraint(Sketcher.Constraint("Parallel", 18, 19))
sketch6.addConstraint(Sketcher.Constraint("Parallel", 19, 21))
sketch6.addConstraint(Sketcher.Constraint("Parallel", 21, 22))
sketch6.addConstraint(Sketcher.Constraint("Parallel", 14, 28))
sketch6.addConstraint(Sketcher.Constraint("Parallel", 28, 29))
sketch6.addConstraint(Sketcher.Constraint("Parallel", 29, 37))
sketch6.addConstraint(Sketcher.Constraint("Parallel", 37, 38))
sketch6.addConstraint(Sketcher.Constraint("Parallel", 22, 42))
sketch6.addConstraint(Sketcher.Constraint("Parallel", 42, 43))
sketch6.addConstraint(Sketcher.Constraint("Parallel", 43, 45))
sketch6.addConstraint(Sketcher.Constraint("Parallel", 45, 46))
sketch6.addConstraint(Sketcher.Constraint("Parallel", 38, 52))
sketch6.addConstraint(Sketcher.Constraint("Parallel", 52, 53))
sketch6.addConstraint(Sketcher.Constraint("Parallel", 46, 59))
sketch6.addConstraint(Sketcher.Constraint("Parallel", 59, 60))
sketch6.addConstraint(Sketcher.Constraint("Parallel", 53, 64))
sketch6.addConstraint(Sketcher.Constraint("Parallel", 64, 65))
sketch6.addConstraint(Sketcher.Constraint("Parallel", 65, 69))
sketch6.addConstraint(Sketcher.Constraint("Parallel", 69, 70))
sketch6.addConstraint(Sketcher.Constraint("Parallel", 60, 74))
sketch6.addConstraint(Sketcher.Constraint("Parallel", 74, 75))
sketch6.addConstraint(Sketcher.Constraint("Parallel", 75, 79))
sketch6.addConstraint(Sketcher.Constraint("Parallel", 79, 80))
sketch6.addConstraint(Sketcher.Constraint("Parallel", 70, 84))
sketch6.addConstraint(Sketcher.Constraint("Parallel", 84, 85))
sketch6.addConstraint(Sketcher.Constraint("Horizontal", 27, 3, 30, 3))
sketch6.addConstraint(Sketcher.Constraint("Horizontal", 51, 3, 54, 3))
sketch6.addConstraint(Sketcher.Constraint("Horizontal", 68, 3, 71, 3))
sketch6.addConstraint(Sketcher.Constraint("Horizontal", 66, 3, 73, 3))
sketch6.addConstraint(Sketcher.Constraint("Horizontal", 1, 2, 8, 2))
sketch6.addConstraint(Sketcher.Constraint("Horizontal", 21, 2, 28, 2))
sketch6.addConstraint(Sketcher.Constraint("Horizontal", 37, 2, 42, 2))
sketch6.addConstraint(Sketcher.Constraint("Horizontal", 59, 2, 69, 2))
sketch6.addConstraint(Sketcher.Constraint("Horizontal", 64, 2, 74, 2))
sketch6.addConstraint(Sketcher.Constraint("Horizontal", 79, 2, 84, 2))
sketch6.addConstraint(Sketcher.Constraint("Vertical", 9, 3, 12, 3))
sketch6.addConstraint(Sketcher.Constraint("Vertical", 5, 3, 16, 3))
sketch6.addConstraint(Sketcher.Constraint("Vertical", 1, 3, 20, 3))
sketch6.addConstraint(Sketcher.Constraint("Vertical", 16, 3, 24, 3))
sketch6.addConstraint(Sketcher.Constraint("Vertical", 32, 3, 49, 3))
sketch6.addConstraint(Sketcher.Constraint("Vertical", 27, 3, 54, 3))
sketch6.addConstraint(Sketcher.Constraint("Vertical", 57, 3, 62, 3))
sketch6.addConstraint(Sketcher.Constraint("Vertical", 51, 3, 66, 3))
sketch6.addConstraint(Sketcher.Constraint("Vertical", 56, 3, 71, 3))
sketch6.addConstraint(Sketcher.Constraint("Vertical", 20, 3, 81, 3))
sketch6.addConstraint(Sketcher.Constraint("Vertical", 12, 3, 83, 3))
sketch6.addConstraint(Sketcher.Constraint("Vertical", 77, 3, 87, 3))
sketch6.addConstraint(Sketcher.Constraint("Vertical", 59, 2, 64, 2))
sketch6.addConstraint(Sketcher.Constraint("Vertical", 37, 2, 79, 2))
sketch6.addConstraint(Sketcher.Constraint("Vertical", 42, 2, 84, 2))
sketch6.addConstraint(Sketcher.Constraint("Equal", 13, 19))
sketch6.addConstraint(Sketcher.Constraint("Radius", 1, 2.0))
sketch6.addConstraint(Sketcher.Constraint("Angle", 2, Q("-60.0001 deg")))
sketch6.addConstraint(Sketcher.Constraint("Radius", 24, 25.25))
sketch6.addConstraint(Sketcher.Constraint("Radius", 62, 11.55))
sketch6.addConstraint(Sketcher.Constraint("DistanceY", -1, 1, 1, 3, 220.0))
sketch6.addConstraint(Sketcher.Constraint("DistanceX", -1, 1, 5, 3, 27.0))
sketch6.addConstraint(Sketcher.Constraint("DistanceX", -1, 1, 25, 3, 7.0))
sketch6.addConstraint(Sketcher.Constraint("DistanceX", -1, 1, 30, 3, 48.0))
sketch6.addConstraint(Sketcher.Constraint("DistanceY", -1, 1, 62, 3, 50.0))
sketch6.addConstraint(Sketcher.Constraint("DistanceY", -1, 1, 81, 3, 12.0))
sketch6.addConstraint(Sketcher.Constraint("Radius", 5, 25.251))
sketch6.addConstraint(Sketcher.Constraint("Radius", 16, 25.229))
sketch6.addConstraint(Sketcher.Constraint("Radius", 40, 11.548))
sketch6.addConstraint(Sketcher.Constraint("DistanceY", -1, 1, 24, 1, 152.2))
sketch6.addConstraint(Sketcher.Constraint("Radius", 87, 11.5486))
sketch6.addConstraint(Sketcher.Constraint("Distance", 38, 13.31))
sketch6.addConstraint(Sketcher.Constraint("Distance", 64, 12.97))
sketch6.addConstraint(Sketcher.Constraint("DistanceX", 0, 2, 0, 1, 33.453))
sketch6.addConstraint(Sketcher.Constraint("DistanceX", 10, 1, 10, 2, 16.749))
sketch6.addConstraint(Sketcher.Constraint("DistanceY", 67, 1, 67, 2, 57.525))
sketch6.addConstraint(Sketcher.Constraint("DistanceX", -1, 1, 6, 3, 30.58))
sketch6.addConstraint(Sketcher.Constraint("DistanceY", -1, 1, 15, 3, 142.16))
sketch6.addConstraint(Sketcher.Constraint("DistanceY", -1, 1, 20, 3, 115.35))
sketch6.addConstraint(Sketcher.Constraint("DistanceY", -1, 1, 36, 3, 88.35))
sketch6.addConstraint(Sketcher.Constraint("DistanceX", -1, 1, 76, 2, 19.12))
sketch6.addConstraint(Sketcher.Constraint("Distance", 3, 15.579))
sketch6.addConstraint(Sketcher.Constraint("Distance", 7, 13.196))
sketch6.addConstraint(Sketcher.Constraint("DistanceX", 35, 2, 35, 1, 33.3338))
sketch6.addConstraint(Sketcher.Constraint("DistanceY", 26, 2, 26, 1, 25.9244))
sketch6.addConstraint(Sketcher.Constraint("DistanceY", 50, 1, 50, 2, 23.8203))
sketch6.addConstraint(Sketcher.Constraint("DistanceY", -1, 1, 5, 3, 169.349))
sketch6.addConstraint(Sketcher.Constraint("DistanceY", -1, 1, 12, 3, 115.453))
sketch6.addConstraint(Sketcher.Constraint("DistanceY", -1, 1, 40, 3, 50.002))
sketch6.addConstraint(Sketcher.Constraint("DistanceX", -1, 1, 13, 2, 38.382))
sketch6.addConstraint(Sketcher.Constraint("DistanceX", -1, 1, 21, 2, 13.154))
sketch6.addConstraint(Sketcher.Constraint("DistanceX", -1, 1, 37, 2, 16.832))
sketch6.addConstraint(Sketcher.Constraint("DistanceY", -1, 1, 45, 2, 204.792))
sketch6.addConstraint(Sketcher.Constraint("DistanceX", -1, 1, 52, 2, 11.372))
sketch6.addConstraint(Sketcher.Constraint("DistanceX", -1, 1, 86, 2, 29.494))
pocket5 = body.newObject("PartDesign::Pocket", "Pocket004")
pocket5.Profile = sketch6
pocket5.Length = 3

sketch7 = body.newObject("Sketcher::SketchObject", "Sketch006")
sketch7.AttachmentSupport = (doc.getObject("YZ_Plane"), [""])
sketch7.MapMode = "FlatFace"
sketch7.AttachmentOffset = App.Placement(V(0, 0, 5), App.Rotation())
sketch7.addGeometry(Part.LineSegment(V(14, 94.3, 0), V(42, 94.3, 0)), False)
sketch7.addGeometry(Part.ArcOfCircle(Part.Circle(V(42, 95.3, 0), V(0, 0, 1), 1), math.radians(-90), math.radians(0)), False)
sketch7.addGeometry(Part.LineSegment(V(43, 95.3, 0), V(43, 108.3, 0)), False)
sketch7.addGeometry(Part.ArcOfCircle(Part.Circle(V(42, 108.3, 0), V(0, 0, 1), 1), math.radians(0), math.radians(90)), False)
sketch7.addGeometry(Part.LineSegment(V(42, 109.3, 0), V(14, 109.3, 0)), False)
sketch7.addGeometry(Part.ArcOfCircle(Part.Circle(V(14, 108.3, 0), V(0, 0, 1), 1), math.radians(90), math.radians(180)), False)
sketch7.addGeometry(Part.LineSegment(V(13, 108.3, 0), V(13, 95.3, 0)), False)
sketch7.addGeometry(Part.ArcOfCircle(Part.Circle(V(14, 95.3, 0), V(0, 0, 1), 1), math.radians(180), math.radians(270)), False)
sketch7.addConstraint(Sketcher.Constraint("Tangent", 0, 2, 1, 1))
sketch7.addConstraint(Sketcher.Constraint("Tangent", 1, 2, 2, 1))
sketch7.addConstraint(Sketcher.Constraint("Tangent", 2, 2, 3, 1))
sketch7.addConstraint(Sketcher.Constraint("Tangent", 3, 2, 4, 1))
sketch7.addConstraint(Sketcher.Constraint("Tangent", 4, 2, 5, 1))
sketch7.addConstraint(Sketcher.Constraint("Tangent", 5, 2, 6, 1))
sketch7.addConstraint(Sketcher.Constraint("Tangent", 6, 2, 7, 1))
sketch7.addConstraint(Sketcher.Constraint("Tangent", 7, 2, 0, 1))
sketch7.addConstraint(Sketcher.Constraint("Horizontal", 0))
sketch7.addConstraint(Sketcher.Constraint("Vertical", 2))
sketch7.addConstraint(Sketcher.Constraint("Horizontal", 4))
sketch7.addConstraint(Sketcher.Constraint("Vertical", 6))
sketch7.addConstraint(Sketcher.Constraint("Equal", 1, 3))
sketch7.addConstraint(Sketcher.Constraint("Equal", 3, 5))
sketch7.addConstraint(Sketcher.Constraint("Equal", 5, 7))
sketch7.addConstraint(Sketcher.Constraint("Radius", 1, 1.0))
sketch7.addConstraint(Sketcher.Constraint("DistanceY", 0, 2, 3, 2, 15.0))
sketch7.addConstraint(Sketcher.Constraint("DistanceX", 0, 1, 0, 2, 28.0))
sketch7.addConstraint(Sketcher.Constraint("DistanceX", -1, 1, 1, 3, 42.0))
sketch7.addConstraint(Sketcher.Constraint("DistanceY", -1, 1, 1, 3, 95.35))
pocket6 = body.newObject("PartDesign::Pocket", "Pocket005")
pocket6.Profile = sketch7
pocket6.Length = 5

sketch8 = body.newObject("Sketcher::SketchObject", "Sketch007")
sketch8.AttachmentSupport = (doc.getObject("YZ_Plane"), [""])
sketch8.MapMode = "FlatFace"
sketch8.AttachmentOffset = App.Placement(V(0, 0, 5), App.Rotation())
sketch8.addGeometry(Part.ArcOfCircle(Part.Circle(V(6, 249, 0), V(0, 0, 1), 1), math.radians(90), math.radians(180)), False)
sketch8.addGeometry(Part.LineSegment(V(5, 249, 0), V(5, 240.5, 0)), False)
sketch8.addGeometry(Part.ArcOfCircle(Part.Circle(V(6, 240.5, 0), V(0, 0, 1), 1), math.radians(180), math.radians(270)), False)
sketch8.addGeometry(Part.LineSegment(V(6, 239.5, 0), V(9.5, 239.5, 0)), False)
sketch8.addGeometry(Part.ArcOfCircle(Part.Circle(V(9.5, 240.5, 0), V(0, 0, 1), 1), math.radians(-90), math.radians(0)), False)
sketch8.addGeometry(Part.LineSegment(V(10.5, 240.5, 0), V(10.5, 249, 0)), False)
sketch8.addGeometry(Part.ArcOfCircle(Part.Circle(V(9.5, 249, 0), V(0, 0, 1), 1), math.radians(0), math.radians(90)), False)
sketch8.addGeometry(Part.LineSegment(V(9.5, 250, 0), V(6, 250, 0)), False)
sketch8.addConstraint(Sketcher.Constraint("Tangent", 0, 2, 1, 1))
sketch8.addConstraint(Sketcher.Constraint("Tangent", 1, 2, 2, 1))
sketch8.addConstraint(Sketcher.Constraint("Tangent", 2, 2, 3, 1))
sketch8.addConstraint(Sketcher.Constraint("Tangent", 3, 2, 4, 1))
sketch8.addConstraint(Sketcher.Constraint("Tangent", 4, 2, 5, 1))
sketch8.addConstraint(Sketcher.Constraint("Tangent", 5, 2, 6, 1))
sketch8.addConstraint(Sketcher.Constraint("Tangent", 6, 2, 7, 1))
sketch8.addConstraint(Sketcher.Constraint("Tangent", 7, 2, 0, 1))
sketch8.addConstraint(Sketcher.Constraint("Vertical", 1))
sketch8.addConstraint(Sketcher.Constraint("Horizontal", 3))
sketch8.addConstraint(Sketcher.Constraint("Vertical", 5))
sketch8.addConstraint(Sketcher.Constraint("Horizontal", 7))
sketch8.addConstraint(Sketcher.Constraint("Equal", 0, 2))
sketch8.addConstraint(Sketcher.Constraint("Equal", 2, 4))
sketch8.addConstraint(Sketcher.Constraint("Equal", 4, 6))
sketch8.addConstraint(Sketcher.Constraint("Radius", 0, 1.0))
sketch8.addConstraint(Sketcher.Constraint("DistanceX", -1, 1, 0, 2, 5.0))
sketch8.addConstraint(Sketcher.Constraint("DistanceX", -1, 1, 4, 2, 10.5))
sketch8.addConstraint(Sketcher.Constraint("DistanceY", 1, 2, 1, 1, 8.5))
sketch8.addConstraint(Sketcher.Constraint("DistanceY", -1, 1, 0, 3, 249.0))
pocket7 = body.newObject("PartDesign::Pocket", "Pocket006")
pocket7.Profile = sketch8
pocket7.Length = 10

doc.recompute()
